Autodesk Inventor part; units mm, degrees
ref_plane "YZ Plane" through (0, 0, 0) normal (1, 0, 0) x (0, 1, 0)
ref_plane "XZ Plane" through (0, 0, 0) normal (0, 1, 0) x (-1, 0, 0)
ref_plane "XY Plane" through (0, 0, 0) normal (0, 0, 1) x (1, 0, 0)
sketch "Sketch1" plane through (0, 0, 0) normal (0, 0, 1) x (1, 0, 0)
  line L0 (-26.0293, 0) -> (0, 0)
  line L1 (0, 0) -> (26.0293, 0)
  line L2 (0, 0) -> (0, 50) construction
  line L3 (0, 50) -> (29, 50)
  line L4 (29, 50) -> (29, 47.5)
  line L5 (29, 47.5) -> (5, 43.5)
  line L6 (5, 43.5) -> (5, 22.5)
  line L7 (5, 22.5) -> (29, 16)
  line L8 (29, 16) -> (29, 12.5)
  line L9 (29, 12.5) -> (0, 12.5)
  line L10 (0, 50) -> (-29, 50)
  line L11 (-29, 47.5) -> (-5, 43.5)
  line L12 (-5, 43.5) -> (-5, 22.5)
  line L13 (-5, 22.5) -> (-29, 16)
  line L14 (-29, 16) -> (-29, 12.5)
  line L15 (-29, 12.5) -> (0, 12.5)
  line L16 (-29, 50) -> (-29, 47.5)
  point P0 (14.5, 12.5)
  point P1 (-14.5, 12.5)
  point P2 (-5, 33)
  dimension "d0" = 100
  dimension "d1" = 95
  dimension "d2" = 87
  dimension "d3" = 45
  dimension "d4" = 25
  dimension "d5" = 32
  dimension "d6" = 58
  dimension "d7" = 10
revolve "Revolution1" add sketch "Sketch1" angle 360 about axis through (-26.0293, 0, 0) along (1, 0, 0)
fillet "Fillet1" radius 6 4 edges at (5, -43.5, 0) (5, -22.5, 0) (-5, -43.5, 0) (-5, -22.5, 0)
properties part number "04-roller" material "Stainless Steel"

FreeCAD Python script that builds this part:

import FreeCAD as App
import Part
import Sketcher
from FreeCAD import Vector


def edges_at(feature, points):
    """Names of the edges that pass closest to the given points."""
    edges = feature.Shape.Edges
    near = lambda p: min(range(len(edges)), key=lambda i: edges[i].distToShape(Part.Vertex(*p))[0])
    return sorted({f"Edge{near(p) + 1}" for p in points})

doc = App.newDocument("Part")
params = doc.addObject("Spreadsheet::Sheet", "Params")
for row, (alias, value) in enumerate([
    ("sketch1_width", "58 mm"),
    ("sketch1_height", "21 mm"),
    ("sketch1_height2", "2.5 mm"),
    ("sketch1_height3", "3.5 mm"),
    ("revolution_angle", "360 deg"),
    ("fillet_radius", "6 mm"),
], start=1):
    params.set(f"A{row}", alias)
    params.set(f"B{row}", "=" + value)
    params.setAlias(f"B{row}", alias)

body = doc.addObject("PartDesign::Body", "Body")

# Sketch on XY plane
sketch1 = body.newObject("Sketcher::SketchObject", "Sketch")
sketch1.AttachmentSupport = (doc.getObject("XY_Plane"), [""])
sketch1.MapMode = "FlatFace"
sketch1.addGeometry(Part.LineSegment(Vector(29, 50, 0), Vector(-29, 50, 0)), False)
sketch1.addGeometry(Part.LineSegment(Vector(-29, 50, 0), Vector(-29, 47.5, 0)), False)
sketch1.addGeometry(Part.LineSegment(Vector(-29, 47.5, 0), Vector(-5, 43.5, 0)), False)
sketch1.addGeometry(Part.LineSegment(Vector(-5, 43.5, 0), Vector(-5, 22.5, 0)), False)
sketch1.addGeometry(Part.LineSegment(Vector(-5, 22.5, 0), Vector(-29, 16, 0)), False)
sketch1.addGeometry(Part.LineSegment(Vector(-29, 16, 0), Vector(-29, 12.5, 0)), False)
sketch1.addGeometry(Part.LineSegment(Vector(-29, 12.5, 0), Vector(29, 12.5, 0)), False)
sketch1.addGeometry(Part.LineSegment(Vector(29, 12.5, 0), Vector(29, 16, 0)), False)
sketch1.addGeometry(Part.LineSegment(Vector(29, 16, 0), Vector(5, 22.5, 0)), False)
sketch1.addGeometry(Part.LineSegment(Vector(5, 22.5, 0), Vector(5, 43.5, 0)), False)
sketch1.addGeometry(Part.LineSegment(Vector(5, 43.5, 0), Vector(29, 47.5, 0)), False)
sketch1.addGeometry(Part.LineSegment(Vector(29, 47.5, 0), Vector(29, 50, 0)), False)
sketch1.addConstraint(Sketcher.Constraint("Coincident", 0, 2, 1, 1))
sketch1.addConstraint(Sketcher.Constraint("Coincident", 1, 2, 2, 1))
sketch1.addConstraint(Sketcher.Constraint("Coincident", 2, 2, 3, 1))
sketch1.addConstraint(Sketcher.Constraint("Coincident", 3, 2, 4, 1))
sketch1.addConstraint(Sketcher.Constraint("Coincident", 4, 2, 5, 1))
sketch1.addConstraint(Sketcher.Constraint("Coincident", 5, 2, 6, 1))
sketch1.addConstraint(Sketcher.Constraint("Coincident", 6, 2, 7, 1))
sketch1.addConstraint(Sketcher.Constraint("Coincident", 7, 2, 8, 1))
sketch1.addConstraint(Sketcher.Constraint("Coincident", 8, 2, 9, 1))
sketch1.addConstraint(Sketcher.Constraint("Coincident", 9, 2, 10, 1))
sketch1.addConstraint(Sketcher.Constraint("Coincident", 10, 2, 11, 1))
sketch1.addConstraint(Sketcher.Constraint("Coincident", 11, 2, 0, 1))
sketch1.addConstraint(Sketcher.Constraint("Horizontal", 0))
sketch1.addConstraint(Sketcher.Constraint("Vertical", 1))
sketch1.addConstraint(Sketcher.Constraint("Vertical", 3))
sketch1.addConstraint(Sketcher.Constraint("Vertical", 5))
sketch1.addConstraint(Sketcher.Constraint("Horizontal", 6))
sketch1.addConstraint(Sketcher.Constraint("Vertical", 7))
sketch1.addConstraint(Sketcher.Constraint("Vertical", 9))
sketch1.addConstraint(Sketcher.Constraint("Vertical", 11))
sketch1.addConstraint(Sketcher.Constraint("Symmetric", 4, 2, 7, 2, -2))
sketch1.addConstraint(Sketcher.Constraint("Symmetric", 3, 2, 8, 2, -2))
sketch1.addConstraint(Sketcher.Constraint("Symmetric", 1, 2, 10, 2, -2))
sketch1.addConstraint(Sketcher.Constraint("Horizontal", 2, 2, 9, 2))
sketch1.addConstraint(Sketcher.Constraint("Vertical", 1, 2, 4, 2))
sketch1.addConstraint(Sketcher.Constraint("DistanceX", 0, 2, 0, 1, 58.0))
sketch1.addConstraint(Sketcher.Constraint("DistanceY", 3, 2, 1, 2, 25.0))
sketch1.addConstraint(Sketcher.Constraint("DistanceY", 5, 2, 3, 2, 10.0))
sketch1.addConstraint(Sketcher.Constraint("DistanceX", 3, 2, 8, 2, 10.0))
sketch1.addConstraint(Sketcher.Constraint("DistanceY", 3, 2, 3, 1, 21.0))
sketch1.addConstraint(Sketcher.Constraint("DistanceY", 1, 2, 1, 1, 2.5))
sketch1.addConstraint(Sketcher.Constraint("DistanceY", 5, 2, 5, 1, 3.5))
sketch1.addConstraint(Sketcher.Constraint("DistanceY", -1, 1, 0, 2, 50.0))
sketch1.setExpression("Constraints[25]", "Params.sketch1_width")
sketch1.setExpression("Constraints[29]", "Params.sketch1_height")
sketch1.setExpression("Constraints[30]", "Params.sketch1_height2")
sketch1.setExpression("Constraints[31]", "Params.sketch1_height3")
revolution = body.newObject("PartDesign::Revolution", "Revolution")
revolution.Profile = sketch1
revolution.ReferenceAxis = (sketch1, ["H_Axis"])
revolution.setExpression("Angle", "Params.revolution_angle")
doc.recompute()

fillet = body.newObject("PartDesign::Fillet", "Fillet")
fillet.Base = (revolution, edges_at(revolution, [
    (5, -43.5, 0),
    (5, -22.5, 0),
    (-5, -43.5, 0),
    (-5, -22.5, 0),
]))
fillet.setExpression("Radius", "Params.fillet_radius")

doc.recompute()
